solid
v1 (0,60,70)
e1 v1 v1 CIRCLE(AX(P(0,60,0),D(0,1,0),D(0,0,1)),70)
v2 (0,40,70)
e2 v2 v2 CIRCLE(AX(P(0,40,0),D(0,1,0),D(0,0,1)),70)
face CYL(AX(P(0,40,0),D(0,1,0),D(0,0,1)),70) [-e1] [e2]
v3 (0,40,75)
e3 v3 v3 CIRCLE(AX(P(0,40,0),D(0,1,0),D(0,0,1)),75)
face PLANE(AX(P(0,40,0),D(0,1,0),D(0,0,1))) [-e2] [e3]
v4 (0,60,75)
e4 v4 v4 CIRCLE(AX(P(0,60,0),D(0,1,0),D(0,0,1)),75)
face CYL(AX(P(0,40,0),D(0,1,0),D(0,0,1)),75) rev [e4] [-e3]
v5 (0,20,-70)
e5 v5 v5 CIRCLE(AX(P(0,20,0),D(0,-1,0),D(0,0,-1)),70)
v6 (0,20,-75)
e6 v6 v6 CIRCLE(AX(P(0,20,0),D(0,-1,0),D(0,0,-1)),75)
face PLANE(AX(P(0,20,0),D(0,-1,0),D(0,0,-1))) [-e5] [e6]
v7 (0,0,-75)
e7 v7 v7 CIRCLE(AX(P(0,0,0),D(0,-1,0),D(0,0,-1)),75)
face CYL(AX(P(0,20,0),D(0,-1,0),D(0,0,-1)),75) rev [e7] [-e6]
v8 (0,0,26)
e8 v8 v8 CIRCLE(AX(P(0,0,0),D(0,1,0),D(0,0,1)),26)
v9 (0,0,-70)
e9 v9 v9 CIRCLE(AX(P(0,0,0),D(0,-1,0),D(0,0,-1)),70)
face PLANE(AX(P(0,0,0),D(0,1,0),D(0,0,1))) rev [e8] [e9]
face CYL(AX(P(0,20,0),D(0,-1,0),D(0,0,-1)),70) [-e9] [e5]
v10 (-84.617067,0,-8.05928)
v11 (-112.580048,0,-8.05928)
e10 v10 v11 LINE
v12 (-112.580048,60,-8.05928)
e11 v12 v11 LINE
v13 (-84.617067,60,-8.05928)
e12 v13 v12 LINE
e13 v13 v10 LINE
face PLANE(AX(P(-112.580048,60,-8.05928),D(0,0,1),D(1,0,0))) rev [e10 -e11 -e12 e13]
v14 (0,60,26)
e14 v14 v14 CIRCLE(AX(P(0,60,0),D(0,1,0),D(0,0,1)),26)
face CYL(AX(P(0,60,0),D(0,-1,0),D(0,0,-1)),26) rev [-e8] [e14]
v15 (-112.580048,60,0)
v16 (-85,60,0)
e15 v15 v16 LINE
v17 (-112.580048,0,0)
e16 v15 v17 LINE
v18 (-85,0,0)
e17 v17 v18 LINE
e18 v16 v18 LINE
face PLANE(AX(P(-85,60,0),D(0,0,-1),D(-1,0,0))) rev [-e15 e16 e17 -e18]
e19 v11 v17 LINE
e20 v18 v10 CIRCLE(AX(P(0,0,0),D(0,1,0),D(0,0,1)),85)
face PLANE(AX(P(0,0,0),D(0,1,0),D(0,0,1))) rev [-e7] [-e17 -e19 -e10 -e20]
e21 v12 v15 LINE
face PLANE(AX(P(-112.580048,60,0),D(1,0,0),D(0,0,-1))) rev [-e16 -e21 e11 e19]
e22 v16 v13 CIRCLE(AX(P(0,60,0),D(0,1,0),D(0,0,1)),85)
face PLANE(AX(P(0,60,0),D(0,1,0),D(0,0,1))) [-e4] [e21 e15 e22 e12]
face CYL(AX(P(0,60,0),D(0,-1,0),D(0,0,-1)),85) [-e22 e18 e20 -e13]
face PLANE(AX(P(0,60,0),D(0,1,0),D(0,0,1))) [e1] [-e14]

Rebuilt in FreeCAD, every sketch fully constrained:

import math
import FreeCAD as App
import Part
import Sketcher
from FreeCAD import Vector

doc = App.newDocument("Part")
body = doc.addObject("PartDesign::Body", "Body")

# Sketch on XZ plane
sketch1 = doc.addObject("Sketcher::SketchObject", "Sketch")
body.addObject(sketch1)
sketch1.AttachmentSupport = (doc.XZ_Plane, [""])
sketch1.MapMode = "FlatFace"
sketch1.addGeometry(Part.LineSegment(Vector(-113, 0, 0), Vector(-85, 0, 0)), False)
sketch1.addGeometry(Part.ArcOfCircle(Part.Circle(Vector(0, 0, 0), Vector(0, 0, 1), 85), math.radians(-175), math.radians(180)), False)
sketch1.addGeometry(Part.LineSegment(Vector(-85, -8, 0), Vector(-113, -8, 0)), False)
sketch1.addGeometry(Part.LineSegment(Vector(-113, -8, 0), Vector(-113, 0, 0)), False)
sketch1.addGeometry(Part.Circle(Vector(0, 0, 0), Vector(0, 0, 1), 26), False)
sketch1.addConstraint(Sketcher.Constraint("Coincident", 0, 2, 1, 2))
sketch1.addConstraint(Sketcher.Constraint("Coincident", 1, 1, 2, 1))
sketch1.addConstraint(Sketcher.Constraint("Coincident", 2, 2, 3, 1))
sketch1.addConstraint(Sketcher.Constraint("Coincident", 3, 2, 0, 1))
sketch1.addConstraint(Sketcher.Constraint("Horizontal", 0))
sketch1.addConstraint(Sketcher.Constraint("Horizontal", 2))
sketch1.addConstraint(Sketcher.Constraint("Vertical", 3))
sketch1.addConstraint(Sketcher.Constraint("Coincident", 1, 3, -1, 1))
sketch1.addConstraint(Sketcher.Constraint("Coincident", 4, 3, -1, 1))
sketch1.addConstraint(Sketcher.Constraint("PointOnObject", 0, 2, -1))
sketch1.addConstraint(Sketcher.Constraint("Diameter", 4, 52.0))
sketch1.addConstraint(Sketcher.Constraint("Radius", 1, 85.0))
sketch1.addConstraint(Sketcher.Constraint("DistanceX", 0, 1, 0, 2, 27.580048))
sketch1.addConstraint(Sketcher.Constraint("DistanceX", 2, 2, 2, 1, 27.962981))
pad1 = doc.addObject("PartDesign::Pad", "Pad")
body.addObject(pad1)
pad1.Profile = sketch1
pad1.Length = 60
pad1.Reversed = True

# Sketch on XZ plane
sketch2 = doc.addObject("Sketcher::SketchObject", "Sketch001")
body.addObject(sketch2)
sketch2.AttachmentSupport = (doc.XZ_Plane, [""])
sketch2.MapMode = "FlatFace"
sketch2.addGeometry(Part.Circle(Vector(0, 0, 0), Vector(0, 0, 1), 75), False)
sketch2.addGeometry(Part.Circle(Vector(0, 0, 0), Vector(0, 0, 1), 70), False)
sketch2.addConstraint(Sketcher.Constraint("Coincident", 0, 3, -1, 1))
sketch2.addConstraint(Sketcher.Constraint("Coincident", 1, 3, -1, 1))
sketch2.addConstraint(Sketcher.Constraint("Diameter", 0, 150.0))
sketch2.addConstraint(Sketcher.Constraint("Diameter", 1, 140.0))
pocket1 = doc.addObject("PartDesign::Pocket", "Pocket")
body.addObject(pocket1)
pocket1.Profile = sketch2
pocket1.Length = 20

# Sketch on XZ plane
sketch3 = doc.addObject("Sketcher::SketchObject", "Sketch002")
body.addObject(sketch3)
sketch3.AttachmentSupport = (doc.XZ_Plane, [""])
sketch3.MapMode = "FlatFace"
sketch3.AttachmentOffset = App.Placement(Vector(0, 0, -60), App.Rotation())
sketch3.addGeometry(Part.Circle(Vector(0, 0, 0), Vector(0, 0, 1), 75), False)
sketch3.addGeometry(Part.Circle(Vector(0, 0, 0), Vector(0, 0, 1), 70), False)
sketch3.addConstraint(Sketcher.Constraint("Coincident", 0, 3, -1, 1))
sketch3.addConstraint(Sketcher.Constraint("Coincident", 1, 3, -1, 1))
sketch3.addConstraint(Sketcher.Constraint("Diameter", 0, 150.0))
sketch3.addConstraint(Sketcher.Constraint("Diameter", 1, 140.0))
pocket2 = doc.addObject("PartDesign::Pocket", "Pocket001")
body.addObject(pocket2)
pocket2.Profile = sketch3
pocket2.Length = 20
pocket2.Reversed = True

doc.recompute()
